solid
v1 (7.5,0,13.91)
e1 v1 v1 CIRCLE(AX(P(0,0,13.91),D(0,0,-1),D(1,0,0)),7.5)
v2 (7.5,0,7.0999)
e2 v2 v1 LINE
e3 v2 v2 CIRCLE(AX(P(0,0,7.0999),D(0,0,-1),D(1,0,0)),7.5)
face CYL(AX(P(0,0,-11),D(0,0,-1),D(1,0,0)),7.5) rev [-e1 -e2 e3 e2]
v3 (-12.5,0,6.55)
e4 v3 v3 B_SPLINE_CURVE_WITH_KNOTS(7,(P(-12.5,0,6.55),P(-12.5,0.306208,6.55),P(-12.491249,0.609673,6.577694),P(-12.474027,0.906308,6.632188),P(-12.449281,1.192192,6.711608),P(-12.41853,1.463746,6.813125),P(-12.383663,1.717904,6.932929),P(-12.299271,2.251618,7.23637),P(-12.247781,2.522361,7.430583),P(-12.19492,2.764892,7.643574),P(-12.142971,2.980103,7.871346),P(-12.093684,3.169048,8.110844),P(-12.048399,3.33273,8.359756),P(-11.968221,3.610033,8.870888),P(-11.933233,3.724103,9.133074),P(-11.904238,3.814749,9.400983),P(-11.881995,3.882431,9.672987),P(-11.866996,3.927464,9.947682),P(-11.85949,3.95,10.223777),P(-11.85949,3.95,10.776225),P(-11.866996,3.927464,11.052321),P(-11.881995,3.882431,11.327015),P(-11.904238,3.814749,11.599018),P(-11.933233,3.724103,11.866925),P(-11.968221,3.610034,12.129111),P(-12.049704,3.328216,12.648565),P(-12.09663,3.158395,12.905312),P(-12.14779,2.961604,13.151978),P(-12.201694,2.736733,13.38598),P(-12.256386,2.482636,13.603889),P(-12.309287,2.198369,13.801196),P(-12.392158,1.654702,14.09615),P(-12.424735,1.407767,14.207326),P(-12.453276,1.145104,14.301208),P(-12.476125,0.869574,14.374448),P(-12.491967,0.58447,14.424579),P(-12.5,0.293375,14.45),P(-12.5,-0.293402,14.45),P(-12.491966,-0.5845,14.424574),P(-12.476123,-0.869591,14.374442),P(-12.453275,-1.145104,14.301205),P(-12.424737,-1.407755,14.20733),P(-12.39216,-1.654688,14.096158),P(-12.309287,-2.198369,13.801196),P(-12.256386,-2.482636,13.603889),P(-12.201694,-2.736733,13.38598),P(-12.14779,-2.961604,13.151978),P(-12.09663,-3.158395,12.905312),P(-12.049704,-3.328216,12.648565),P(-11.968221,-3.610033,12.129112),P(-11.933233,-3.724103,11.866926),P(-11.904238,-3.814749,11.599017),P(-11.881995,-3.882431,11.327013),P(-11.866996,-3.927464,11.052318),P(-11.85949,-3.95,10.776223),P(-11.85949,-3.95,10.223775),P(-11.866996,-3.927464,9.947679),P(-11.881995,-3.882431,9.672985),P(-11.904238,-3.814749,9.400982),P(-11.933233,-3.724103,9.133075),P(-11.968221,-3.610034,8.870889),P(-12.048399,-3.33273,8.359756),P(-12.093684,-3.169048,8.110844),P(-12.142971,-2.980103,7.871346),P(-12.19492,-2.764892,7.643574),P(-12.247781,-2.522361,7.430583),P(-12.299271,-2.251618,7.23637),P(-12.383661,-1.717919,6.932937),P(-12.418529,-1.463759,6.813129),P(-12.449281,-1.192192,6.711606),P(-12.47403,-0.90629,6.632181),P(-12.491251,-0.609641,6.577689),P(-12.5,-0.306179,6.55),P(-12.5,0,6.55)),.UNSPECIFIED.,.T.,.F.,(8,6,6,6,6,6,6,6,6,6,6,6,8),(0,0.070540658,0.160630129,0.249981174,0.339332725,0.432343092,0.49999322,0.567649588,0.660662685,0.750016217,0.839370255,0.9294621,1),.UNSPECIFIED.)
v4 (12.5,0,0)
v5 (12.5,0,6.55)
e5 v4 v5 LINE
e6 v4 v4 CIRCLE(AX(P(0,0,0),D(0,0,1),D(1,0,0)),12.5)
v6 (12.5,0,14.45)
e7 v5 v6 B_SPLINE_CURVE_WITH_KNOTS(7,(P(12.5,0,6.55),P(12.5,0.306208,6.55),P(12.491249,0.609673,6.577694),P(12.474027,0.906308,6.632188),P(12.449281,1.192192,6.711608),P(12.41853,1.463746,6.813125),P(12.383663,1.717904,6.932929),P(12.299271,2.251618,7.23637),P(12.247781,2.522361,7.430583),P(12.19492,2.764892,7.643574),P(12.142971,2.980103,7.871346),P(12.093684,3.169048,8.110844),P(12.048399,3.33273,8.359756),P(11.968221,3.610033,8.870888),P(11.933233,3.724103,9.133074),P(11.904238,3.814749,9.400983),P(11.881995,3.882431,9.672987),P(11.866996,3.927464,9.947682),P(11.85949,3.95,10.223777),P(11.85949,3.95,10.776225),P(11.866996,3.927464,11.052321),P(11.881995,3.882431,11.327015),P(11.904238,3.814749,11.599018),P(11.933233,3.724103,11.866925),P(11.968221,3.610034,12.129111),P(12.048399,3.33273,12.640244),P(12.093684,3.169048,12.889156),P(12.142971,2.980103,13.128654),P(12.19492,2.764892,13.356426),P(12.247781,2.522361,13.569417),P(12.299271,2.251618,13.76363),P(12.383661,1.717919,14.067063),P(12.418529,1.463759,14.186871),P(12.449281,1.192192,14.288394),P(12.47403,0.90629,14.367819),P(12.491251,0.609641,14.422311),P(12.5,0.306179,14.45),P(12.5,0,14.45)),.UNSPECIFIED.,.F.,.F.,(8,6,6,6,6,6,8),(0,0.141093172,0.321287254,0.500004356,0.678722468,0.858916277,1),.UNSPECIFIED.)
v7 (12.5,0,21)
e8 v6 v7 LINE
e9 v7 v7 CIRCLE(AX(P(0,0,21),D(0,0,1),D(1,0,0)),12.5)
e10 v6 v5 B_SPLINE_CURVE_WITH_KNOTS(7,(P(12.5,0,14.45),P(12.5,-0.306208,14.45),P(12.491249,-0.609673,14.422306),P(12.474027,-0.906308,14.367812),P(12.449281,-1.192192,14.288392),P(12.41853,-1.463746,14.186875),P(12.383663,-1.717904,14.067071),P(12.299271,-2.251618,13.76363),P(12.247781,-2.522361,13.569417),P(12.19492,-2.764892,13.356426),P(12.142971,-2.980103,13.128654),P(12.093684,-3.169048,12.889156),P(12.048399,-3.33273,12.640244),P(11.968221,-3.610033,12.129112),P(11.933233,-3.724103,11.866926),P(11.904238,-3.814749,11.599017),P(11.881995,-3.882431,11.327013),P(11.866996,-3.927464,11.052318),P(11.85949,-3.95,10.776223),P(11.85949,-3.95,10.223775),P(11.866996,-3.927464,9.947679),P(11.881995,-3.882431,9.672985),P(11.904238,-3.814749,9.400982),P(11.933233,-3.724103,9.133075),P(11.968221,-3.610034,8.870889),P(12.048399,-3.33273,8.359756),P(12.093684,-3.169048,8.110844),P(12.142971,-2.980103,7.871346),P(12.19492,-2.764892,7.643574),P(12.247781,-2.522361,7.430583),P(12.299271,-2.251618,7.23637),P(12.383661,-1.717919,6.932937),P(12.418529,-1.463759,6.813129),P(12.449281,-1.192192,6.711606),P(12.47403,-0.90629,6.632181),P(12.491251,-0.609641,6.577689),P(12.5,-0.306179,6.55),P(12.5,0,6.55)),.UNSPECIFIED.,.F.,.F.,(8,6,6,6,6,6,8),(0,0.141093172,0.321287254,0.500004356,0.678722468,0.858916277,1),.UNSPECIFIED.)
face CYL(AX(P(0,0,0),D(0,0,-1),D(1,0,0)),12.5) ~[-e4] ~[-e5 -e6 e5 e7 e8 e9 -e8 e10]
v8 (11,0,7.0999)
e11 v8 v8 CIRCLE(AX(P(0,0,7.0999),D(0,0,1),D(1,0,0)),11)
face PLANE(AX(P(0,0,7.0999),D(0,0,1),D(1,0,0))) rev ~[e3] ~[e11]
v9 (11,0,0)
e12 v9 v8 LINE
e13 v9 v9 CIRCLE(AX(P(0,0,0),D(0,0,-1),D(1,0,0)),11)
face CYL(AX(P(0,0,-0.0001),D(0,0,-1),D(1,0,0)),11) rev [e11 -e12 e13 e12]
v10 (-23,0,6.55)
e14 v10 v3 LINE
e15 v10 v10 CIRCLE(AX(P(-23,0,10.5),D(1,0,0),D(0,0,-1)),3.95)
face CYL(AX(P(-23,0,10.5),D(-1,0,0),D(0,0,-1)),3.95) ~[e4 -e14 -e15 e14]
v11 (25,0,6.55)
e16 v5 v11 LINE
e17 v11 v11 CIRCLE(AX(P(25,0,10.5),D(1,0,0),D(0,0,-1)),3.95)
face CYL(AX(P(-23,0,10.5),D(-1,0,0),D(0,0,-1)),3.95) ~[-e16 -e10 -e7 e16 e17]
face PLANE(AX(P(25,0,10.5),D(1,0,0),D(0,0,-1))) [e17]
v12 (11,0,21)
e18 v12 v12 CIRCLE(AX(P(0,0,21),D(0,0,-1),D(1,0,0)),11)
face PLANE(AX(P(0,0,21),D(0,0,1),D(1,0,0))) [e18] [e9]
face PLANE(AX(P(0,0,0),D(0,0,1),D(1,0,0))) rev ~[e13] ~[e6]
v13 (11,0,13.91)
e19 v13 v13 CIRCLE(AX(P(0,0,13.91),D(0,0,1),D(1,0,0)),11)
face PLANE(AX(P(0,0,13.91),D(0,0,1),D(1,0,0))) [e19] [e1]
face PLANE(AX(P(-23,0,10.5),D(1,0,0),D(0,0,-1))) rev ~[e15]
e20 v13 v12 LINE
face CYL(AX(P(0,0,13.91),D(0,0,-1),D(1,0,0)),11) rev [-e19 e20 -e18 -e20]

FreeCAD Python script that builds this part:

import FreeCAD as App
import Part
import Sketcher
Q = App.Units.Quantity

doc = App.newDocument("Part")
params = doc.addObject("Spreadsheet::Sheet", "Params")
for row, (alias, value) in enumerate([
    ("sketch1_diameter", "15 mm"),
    ("pad1_length", "50 mm"),
    ("sketch2_diameter", "22 mm"),
    ("pad2_length", "7.1 mm"),
    ("sketch3_diameter", "22 mm"),
    ("pad3_length", "7.1 mm"),
    ("sketch4_diameter", "7.9 mm"),
    ("pad4_length", "48 mm"),
    ("sketch5_diameter", "25 mm"),
    ("pad5_length", "21 mm"),
], start=1):
    params.set(f"A{row}", alias)
    params.set(f"B{row}", "=" + value)
    params.setAlias(f"B{row}", alias)

body = doc.addObject("PartDesign::Body", "Body")

# Sketch on XY plane
sketch1 = body.newObject("Sketcher::SketchObject", "Sketch")
sketch1.AttachmentSupport = (doc.getObject("XY_Plane"), [""])
sketch1.MapMode = "FlatFace"
sketch1.AttachmentOffset = App.Placement(App.Vector(0, 0, -11), App.Rotation())
sketch1.addGeometry(Part.Circle(App.Vector(0, 0, 0), App.Vector(0, 0, 1), 7.5), False)
sketch1.addConstraint([
    Sketcher.Constraint("Coincident", 0, 3, -1, 1),
    Sketcher.Constraint("Diameter", 0, Q("15 mm")),
])
sketch1.setExpression("Constraints[1]", "Params.sketch1_diameter")
pad1 = body.newObject("PartDesign::Pad", "Pad")
pad1.Profile = sketch1
pad1.setExpression("Length", "Params.pad1_length")
body2 = doc.addObject("PartDesign::Body", "Body001")

# Sketch on XY plane
sketch2 = body2.newObject("Sketcher::SketchObject", "Sketch001")
sketch2.AttachmentSupport = (doc.getObject("XY_Plane001"), [""])
sketch2.MapMode = "FlatFace"
sketch2.AttachmentOffset = App.Placement(App.Vector(0, 0, 13.91), App.Rotation())
sketch2.addGeometry(Part.Circle(App.Vector(0, 0, 0), App.Vector(0, 0, 1), 11), False)
sketch2.addConstraint([
    Sketcher.Constraint("Coincident", 0, 3, -1, 1),
    Sketcher.Constraint("Diameter", 0, Q("22 mm")),
])
sketch2.setExpression("Constraints[1]", "Params.sketch2_diameter")
pad2 = body2.newObject("PartDesign::Pad", "Pad001")
pad2.Profile = sketch2
pad2.setExpression("Length", "Params.pad2_length")
body3 = doc.addObject("PartDesign::Body", "Body002")

# Sketch on XY plane
sketch3 = body3.newObject("Sketcher::SketchObject", "Sketch002")
sketch3.AttachmentSupport = (doc.getObject("XY_Plane002"), [""])
sketch3.MapMode = "FlatFace"
sketch3.AttachmentOffset = App.Placement(App.Vector(0, 0, -0.0001), App.Rotation())
sketch3.addGeometry(Part.Circle(App.Vector(0, 0, 0), App.Vector(0, 0, 1), 11), False)
sketch3.addConstraint([
    Sketcher.Constraint("Coincident", 0, 3, -1, 1),
    Sketcher.Constraint("Diameter", 0, Q("22 mm")),
])
sketch3.setExpression("Constraints[1]", "Params.sketch3_diameter")
pad3 = body3.newObject("PartDesign::Pad", "Pad002")
pad3.Profile = sketch3
pad3.setExpression("Length", "Params.pad3_length")
body4 = doc.addObject("PartDesign::Body", "Body003")

# Sketch on XY plane
sketch4 = body4.newObject("Sketcher::SketchObject", "Sketch003")
sketch4.AttachmentSupport = (doc.getObject("XY_Plane003"), [""])
sketch4.MapMode = "FlatFace"
sketch4.addGeometry(Part.Circle(App.Vector(0, 0, 0), App.Vector(0, 0, 1), 3.95), False)
sketch4.addConstraint([
    Sketcher.Constraint("Coincident", 0, 3, -1, 1),
    Sketcher.Constraint("Diameter", 0, Q("7.9 mm")),
])
sketch4.setExpression("Constraints[1]", "Params.sketch4_diameter")
pad4 = body4.newObject("PartDesign::Pad", "Pad003")
pad4.Profile = sketch4
pad4.setExpression("Length", "Params.pad4_length")
body5 = doc.addObject("PartDesign::Body", "Body004")
doc.recompute()

body4.Placement = App.Placement(App.Vector(0, 0, 0), App.Rotation(App.Vector(0, 1, 0), 90))
boolean = body5.newObject("PartDesign::Boolean", "Boolean")
boolean.Type = "Fuse"
boolean.addObjects([body4])
body6 = doc.addObject("PartDesign::Body", "Body005")
doc.recompute()

body5.Placement = App.Placement(App.Vector(-23, 0, 10.5), App.Rotation(App.Vector(0, 0, 1), 0))
boolean2 = body6.newObject("PartDesign::Boolean", "Boolean001")
boolean2.Type = "Fuse"
boolean2.addObjects([body5])
body7 = doc.addObject("PartDesign::Body", "Body006")

# Sketch on XY plane
sketch5 = body7.newObject("Sketcher::SketchObject", "Sketch004")
sketch5.AttachmentSupport = (doc.getObject("XY_Plane006"), [""])
sketch5.MapMode = "FlatFace"
sketch5.addGeometry(Part.Circle(App.Vector(0, 0, 0), App.Vector(0, 0, 1), 12.5), False)
sketch5.addConstraint([
    Sketcher.Constraint("Coincident", 0, 3, -1, 1),
    Sketcher.Constraint("Diameter", 0, Q("25 mm")),
])
sketch5.setExpression("Constraints[1]", "Params.sketch5_diameter")
pad5 = body7.newObject("PartDesign::Pad", "Pad004")
pad5.Profile = sketch5
pad5.setExpression("Length", "Params.pad5_length")
doc.recompute()

boolean3 = body7.newObject("PartDesign::Boolean", "Boolean002")
boolean3.Type = "Fuse"
boolean3.addObjects([body6])
doc.recompute()

boolean4 = body7.newObject("PartDesign::Boolean", "Boolean003")
boolean4.Type = "Cut"
boolean4.addObjects([body3])
doc.recompute()

boolean5 = body7.newObject("PartDesign::Boolean", "Boolean004")
boolean5.Type = "Cut"
boolean5.addObjects([body2])
doc.recompute()

boolean6 = body7.newObject("PartDesign::Boolean", "Boolean005")
boolean6.Type = "Cut"
boolean6.addObjects([body])

doc.recompute()
